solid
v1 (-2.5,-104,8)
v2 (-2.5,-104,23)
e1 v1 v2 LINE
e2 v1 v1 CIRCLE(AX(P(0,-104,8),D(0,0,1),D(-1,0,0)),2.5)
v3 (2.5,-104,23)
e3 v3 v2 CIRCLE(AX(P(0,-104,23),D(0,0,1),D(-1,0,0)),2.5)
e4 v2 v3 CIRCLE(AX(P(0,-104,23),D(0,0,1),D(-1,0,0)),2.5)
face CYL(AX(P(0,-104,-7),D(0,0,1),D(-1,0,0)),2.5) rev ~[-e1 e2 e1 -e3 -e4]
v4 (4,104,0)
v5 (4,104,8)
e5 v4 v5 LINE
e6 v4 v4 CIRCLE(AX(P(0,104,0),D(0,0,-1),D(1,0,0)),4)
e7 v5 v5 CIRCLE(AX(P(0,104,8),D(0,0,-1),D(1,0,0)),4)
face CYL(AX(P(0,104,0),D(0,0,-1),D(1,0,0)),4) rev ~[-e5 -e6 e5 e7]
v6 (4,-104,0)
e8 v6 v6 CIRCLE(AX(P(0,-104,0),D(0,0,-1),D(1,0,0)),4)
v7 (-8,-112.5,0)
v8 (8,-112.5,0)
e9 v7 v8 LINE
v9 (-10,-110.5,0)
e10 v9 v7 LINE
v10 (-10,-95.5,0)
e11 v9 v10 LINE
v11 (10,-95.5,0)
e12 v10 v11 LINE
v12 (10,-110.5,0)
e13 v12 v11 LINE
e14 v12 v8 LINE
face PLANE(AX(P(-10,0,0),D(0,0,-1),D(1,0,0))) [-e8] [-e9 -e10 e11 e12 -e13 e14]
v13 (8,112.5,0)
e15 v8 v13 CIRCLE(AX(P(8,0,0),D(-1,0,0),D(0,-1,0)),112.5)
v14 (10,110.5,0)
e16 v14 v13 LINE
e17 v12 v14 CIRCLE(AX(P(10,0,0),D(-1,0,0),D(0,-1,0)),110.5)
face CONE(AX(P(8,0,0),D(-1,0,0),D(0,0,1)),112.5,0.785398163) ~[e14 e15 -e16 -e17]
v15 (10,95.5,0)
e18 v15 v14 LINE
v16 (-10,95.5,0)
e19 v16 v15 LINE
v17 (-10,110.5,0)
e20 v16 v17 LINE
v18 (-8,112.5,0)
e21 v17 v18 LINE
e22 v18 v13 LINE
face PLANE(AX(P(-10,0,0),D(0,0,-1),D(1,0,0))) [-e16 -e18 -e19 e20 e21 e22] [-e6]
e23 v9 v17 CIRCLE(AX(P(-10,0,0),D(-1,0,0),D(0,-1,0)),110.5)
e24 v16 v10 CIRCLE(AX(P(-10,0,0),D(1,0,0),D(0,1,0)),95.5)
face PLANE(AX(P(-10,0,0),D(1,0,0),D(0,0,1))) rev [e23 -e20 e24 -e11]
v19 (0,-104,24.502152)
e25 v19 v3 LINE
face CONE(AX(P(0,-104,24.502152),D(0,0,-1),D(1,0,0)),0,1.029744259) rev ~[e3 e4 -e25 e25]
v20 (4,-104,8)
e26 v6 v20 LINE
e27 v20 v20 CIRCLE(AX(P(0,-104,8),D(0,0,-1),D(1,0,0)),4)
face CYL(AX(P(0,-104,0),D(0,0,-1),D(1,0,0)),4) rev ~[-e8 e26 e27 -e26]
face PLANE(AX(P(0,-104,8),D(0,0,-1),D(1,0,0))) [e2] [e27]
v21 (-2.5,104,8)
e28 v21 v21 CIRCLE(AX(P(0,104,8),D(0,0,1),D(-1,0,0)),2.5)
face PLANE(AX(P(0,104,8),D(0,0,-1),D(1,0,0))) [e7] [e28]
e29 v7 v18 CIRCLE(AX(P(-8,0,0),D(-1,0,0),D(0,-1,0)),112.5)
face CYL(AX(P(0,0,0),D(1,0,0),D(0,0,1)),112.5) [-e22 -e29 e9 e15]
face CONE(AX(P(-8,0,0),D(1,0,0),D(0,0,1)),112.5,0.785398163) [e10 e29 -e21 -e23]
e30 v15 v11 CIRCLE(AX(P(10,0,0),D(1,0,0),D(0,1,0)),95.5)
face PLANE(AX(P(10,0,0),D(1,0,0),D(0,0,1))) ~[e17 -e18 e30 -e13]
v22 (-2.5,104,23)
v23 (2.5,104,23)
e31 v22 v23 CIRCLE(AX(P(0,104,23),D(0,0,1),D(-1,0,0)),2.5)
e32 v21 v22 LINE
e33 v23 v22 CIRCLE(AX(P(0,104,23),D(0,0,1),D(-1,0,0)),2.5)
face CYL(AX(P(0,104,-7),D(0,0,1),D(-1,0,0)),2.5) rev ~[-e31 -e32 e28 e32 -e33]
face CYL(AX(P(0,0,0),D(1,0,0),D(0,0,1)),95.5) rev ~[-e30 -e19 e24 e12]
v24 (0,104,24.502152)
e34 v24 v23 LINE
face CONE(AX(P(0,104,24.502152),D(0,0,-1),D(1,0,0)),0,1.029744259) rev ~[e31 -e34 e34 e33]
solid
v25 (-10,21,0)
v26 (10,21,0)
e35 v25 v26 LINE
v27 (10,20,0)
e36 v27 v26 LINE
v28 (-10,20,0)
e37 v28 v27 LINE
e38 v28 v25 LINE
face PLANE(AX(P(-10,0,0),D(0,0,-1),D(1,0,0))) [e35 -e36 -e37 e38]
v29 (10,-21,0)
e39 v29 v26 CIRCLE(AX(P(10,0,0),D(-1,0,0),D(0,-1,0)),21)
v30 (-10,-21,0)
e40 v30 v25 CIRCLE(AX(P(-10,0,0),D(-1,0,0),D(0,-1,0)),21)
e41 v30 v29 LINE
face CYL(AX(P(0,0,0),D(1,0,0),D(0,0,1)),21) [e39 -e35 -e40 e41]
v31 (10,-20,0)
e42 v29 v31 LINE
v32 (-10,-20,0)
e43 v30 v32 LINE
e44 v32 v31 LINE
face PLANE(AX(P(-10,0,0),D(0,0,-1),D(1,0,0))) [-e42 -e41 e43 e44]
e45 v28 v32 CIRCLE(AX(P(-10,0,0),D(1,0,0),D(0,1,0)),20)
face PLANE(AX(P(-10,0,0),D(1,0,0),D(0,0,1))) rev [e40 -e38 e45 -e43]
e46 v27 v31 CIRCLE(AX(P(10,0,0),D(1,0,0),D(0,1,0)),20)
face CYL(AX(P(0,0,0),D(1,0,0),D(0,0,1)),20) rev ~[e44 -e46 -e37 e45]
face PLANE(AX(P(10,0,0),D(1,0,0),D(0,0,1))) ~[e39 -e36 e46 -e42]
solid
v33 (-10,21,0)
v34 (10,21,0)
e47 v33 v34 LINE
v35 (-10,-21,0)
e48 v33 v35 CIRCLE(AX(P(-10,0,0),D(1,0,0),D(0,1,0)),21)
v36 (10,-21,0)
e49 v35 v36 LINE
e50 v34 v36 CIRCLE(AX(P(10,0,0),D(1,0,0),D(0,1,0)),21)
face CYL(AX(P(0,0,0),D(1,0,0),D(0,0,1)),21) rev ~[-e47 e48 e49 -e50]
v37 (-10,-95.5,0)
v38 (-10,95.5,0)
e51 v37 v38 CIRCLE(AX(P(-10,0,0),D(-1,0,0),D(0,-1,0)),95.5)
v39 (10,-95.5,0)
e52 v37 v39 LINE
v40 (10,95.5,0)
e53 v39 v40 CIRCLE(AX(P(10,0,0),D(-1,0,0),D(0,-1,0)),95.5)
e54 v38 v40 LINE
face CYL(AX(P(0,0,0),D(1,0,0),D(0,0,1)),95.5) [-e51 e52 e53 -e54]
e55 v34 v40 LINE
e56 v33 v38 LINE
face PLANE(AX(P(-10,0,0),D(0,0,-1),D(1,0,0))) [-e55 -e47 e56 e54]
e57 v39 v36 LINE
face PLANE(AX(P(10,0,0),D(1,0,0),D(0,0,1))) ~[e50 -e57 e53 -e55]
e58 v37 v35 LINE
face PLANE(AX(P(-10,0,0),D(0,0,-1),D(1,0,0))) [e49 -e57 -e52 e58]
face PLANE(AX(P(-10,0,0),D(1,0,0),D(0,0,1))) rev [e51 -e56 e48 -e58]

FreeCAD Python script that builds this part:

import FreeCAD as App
import Part
import Sketcher

V = App.Vector


def edges_at(feature, points):
    """Names of the edges that pass closest to the given points."""
    edges = feature.Shape.Edges
    near = lambda p: min(range(len(edges)), key=lambda i: edges[i].distToShape(Part.Vertex(*p))[0])
    return sorted({f"Edge{near(p) + 1}" for p in points})

doc = App.newDocument("Part")
body = doc.addObject("PartDesign::Body", "Body")

# Sketch on XZ plane
sketch1 = body.newObject("Sketcher::SketchObject", "Sketch")
sketch1.AttachmentSupport = (doc.getObject("XZ_Plane"), [""])
sketch1.MapMode = "FlatFace"
sketch1.addGeometry([
    Part.LineSegment(V(-10, 21, 0), V(-10, 20, 0)),
    Part.LineSegment(V(-10, 20, 0), V(10, 20, 0)),
    Part.LineSegment(V(10, 20, 0), V(10, 21, 0)),
    Part.LineSegment(V(10, 21, 0), V(-10, 21, 0)),
], False)
sketch1.addConstraint([
    Sketcher.Constraint("Coincident", 0, 2, 1, 1),
    Sketcher.Constraint("Coincident", 1, 2, 2, 1),
    Sketcher.Constraint("Coincident", 2, 2, 3, 1),
    Sketcher.Constraint("Coincident", 3, 2, 0, 1),
    Sketcher.Constraint("Vertical", 0),
    Sketcher.Constraint("Horizontal", 1),
    Sketcher.Constraint("Vertical", 2),
    Sketcher.Constraint("Horizontal", 3),
    Sketcher.Constraint("DistanceX", 1, 1, 1, 2, 20.0),
    Sketcher.Constraint("DistanceY", 0, 2, 0, 1, 1.0),
    Sketcher.Constraint("DistanceX", 0, 2, -1, 1, 10.0),
    Sketcher.Constraint("DistanceY", -1, 1, 0, 2, 20.0),
])
revolution = body.newObject("PartDesign::Revolution", "Revolution")
revolution.Profile = sketch1
revolution.ReferenceAxis = (sketch1, ["H_Axis"])
revolution.Angle = 360
body2 = doc.addObject("PartDesign::Body", "Body001")

# Sketch on XZ plane
sketch2 = body2.newObject("Sketcher::SketchObject", "Sketch001")
sketch2.AttachmentSupport = (doc.getObject("XZ_Plane001"), [""])
sketch2.MapMode = "FlatFace"
sketch2.addGeometry([
    Part.LineSegment(V(-10, 95.5, 0), V(-10, 21, 0)),
    Part.LineSegment(V(-10, 21, 0), V(10, 21, 0)),
    Part.LineSegment(V(10, 21, 0), V(10, 95.5, 0)),
    Part.LineSegment(V(10, 95.5, 0), V(-10, 95.5, 0)),
], False)
sketch2.addConstraint([
    Sketcher.Constraint("Coincident", 0, 2, 1, 1),
    Sketcher.Constraint("Coincident", 1, 2, 2, 1),
    Sketcher.Constraint("Coincident", 2, 2, 3, 1),
    Sketcher.Constraint("Coincident", 3, 2, 0, 1),
    Sketcher.Constraint("Vertical", 0),
    Sketcher.Constraint("Horizontal", 1),
    Sketcher.Constraint("Vertical", 2),
    Sketcher.Constraint("Horizontal", 3),
    Sketcher.Constraint("DistanceX", 1, 1, 1, 2, 20.0),
    Sketcher.Constraint("DistanceY", 0, 2, 0, 1, 74.5),
    Sketcher.Constraint("DistanceX", 0, 2, -1, 1, 10.0),
    Sketcher.Constraint("DistanceY", -1, 1, 0, 2, 21.0),
])
revolution2 = body2.newObject("PartDesign::Revolution", "Revolution001")
revolution2.Profile = sketch2
revolution2.ReferenceAxis = (sketch2, ["H_Axis"])
revolution2.Angle = 360
body3 = doc.addObject("PartDesign::Body", "Body002")

# Sketch on XZ plane
sketch3 = body3.newObject("Sketcher::SketchObject", "Sketch002")
sketch3.AttachmentSupport = (doc.getObject("XZ_Plane002"), [""])
sketch3.MapMode = "FlatFace"
sketch3.addGeometry([
    Part.LineSegment(V(-10, 112.5, 0), V(-10, 95.5, 0)),
    Part.LineSegment(V(-10, 95.5, 0), V(10, 95.5, 0)),
    Part.LineSegment(V(10, 95.5, 0), V(10, 112.5, 0)),
    Part.LineSegment(V(10, 112.5, 0), V(-10, 112.5, 0)),
], False)
sketch3.addConstraint([
    Sketcher.Constraint("Coincident", 0, 2, 1, 1),
    Sketcher.Constraint("Coincident", 1, 2, 2, 1),
    Sketcher.Constraint("Coincident", 2, 2, 3, 1),
    Sketcher.Constraint("Coincident", 3, 2, 0, 1),
    Sketcher.Constraint("Vertical", 0),
    Sketcher.Constraint("Horizontal", 1),
    Sketcher.Constraint("Vertical", 2),
    Sketcher.Constraint("Horizontal", 3),
    Sketcher.Constraint("DistanceX", 1, 1, 1, 2, 20.0),
    Sketcher.Constraint("DistanceY", 0, 2, 0, 1, 17.0),
    Sketcher.Constraint("DistanceX", 0, 2, -1, 1, 10.0),
    Sketcher.Constraint("DistanceY", -1, 1, 0, 2, 95.5),
])
revolution3 = body3.newObject("PartDesign::Revolution", "Revolution002")
revolution3.Profile = sketch3
revolution3.ReferenceAxis = (sketch3, ["H_Axis"])
revolution3.Angle = 360
doc.recompute()

chamfer = body3.newObject("PartDesign::Chamfer", "Chamfer")
chamfer.Base = (revolution3, edges_at(revolution3, [(10, 0, -112.5), (-10, 0, -112.5)]))
chamfer.Size = 2
body4 = doc.addObject("PartDesign::Body", "Body003")

# Sketch on XZ plane
sketch4 = body4.newObject("Sketcher::SketchObject", "Sketch003")
sketch4.AttachmentSupport = (doc.getObject("XZ_Plane003"), [""])
sketch4.MapMode = "FlatFace"
sketch4.addGeometry([
    Part.LineSegment(V(-10, 0, 0), V(-10, -115, 0)),
    Part.LineSegment(V(-10, -115, 0), V(10, -115, 0)),
    Part.LineSegment(V(10, -115, 0), V(10, 0, 0)),
    Part.LineSegment(V(10, 0, 0), V(-10, 0, 0)),
], False)
sketch4.addConstraint([
    Sketcher.Constraint("Coincident", 0, 2, 1, 1),
    Sketcher.Constraint("Coincident", 1, 2, 2, 1),
    Sketcher.Constraint("Coincident", 2, 2, 3, 1),
    Sketcher.Constraint("Coincident", 3, 2, 0, 1),
    Sketcher.Constraint("Vertical", 0),
    Sketcher.Constraint("Horizontal", 1),
    Sketcher.Constraint("Vertical", 2),
    Sketcher.Constraint("Horizontal", 3),
    Sketcher.Constraint("Symmetric", 2, 2, 3, 2, -1, 1),
    Sketcher.Constraint("DistanceX", 1, 1, 1, 2, 20.0),
    Sketcher.Constraint("DistanceY", 0, 2, 0, 1, 115.0),
])
pad1 = body4.newObject("PartDesign::Pad", "Pad")
pad1.Profile = sketch4
pad1.Type = "TwoLengths"
pad1.Length = 112.501
pad1.Length2 = 112.501
doc.recompute()

body5 = doc.addObject("PartDesign::Body", "Body004")
body5.BaseFeature = body4
boolean = body.newObject("PartDesign::Boolean", "Boolean")
boolean.Type = "Cut"
boolean.addObjects([body5])
doc.recompute()

body6 = doc.addObject("PartDesign::Body", "Body005")
body6.BaseFeature = body4
boolean2 = body2.newObject("PartDesign::Boolean", "Boolean001")
boolean2.Type = "Cut"
boolean2.addObjects([body6])
doc.recompute()

boolean3 = body3.newObject("PartDesign::Boolean", "Boolean002")
boolean3.Type = "Cut"
boolean3.addObjects([body4])

# Sketch on XY plane
sketch5 = body3.newObject("Sketcher::SketchObject", "Sketch004")
sketch5.AttachmentSupport = (doc.getObject("XY_Plane002"), [""])
sketch5.MapMode = "FlatFace"
sketch5.addGeometry([
    Part.Circle(V(0, -104, 0), V(0, 0, 1), 4),
    Part.Circle(V(0, 104, 0), V(0, 0, 1), 4),
], False)
sketch5.addConstraint([
    Sketcher.Constraint("Equal", 0, 1),
    Sketcher.Constraint("Symmetric", 0, 3, 1, 3, -1, 1),
    Sketcher.Constraint("PointOnObject", 0, 3, -2),
    Sketcher.Constraint("Diameter", 0, 8.0),
    Sketcher.Constraint("DistanceY", 0, 3, -1, 1, 104.0),
])
pocket1 = body3.newObject("PartDesign::Pocket", "Pocket")
pocket1.Profile = sketch5
pocket1.Length = 8
pocket1.Reversed = True

# Sketch on XY plane
sketch6 = body3.newObject("Sketcher::SketchObject", "Sketch005")
sketch6.AttachmentSupport = (doc.getObject("XY_Plane002"), [""])
sketch6.MapMode = "FlatFace"
sketch6.AttachmentOffset = App.Placement(V(0, 0, 8), App.Rotation())
sketch6.addGeometry([
    Part.Circle(V(0, -104, 0), V(0, 0, 1), 2.5),
    Part.Circle(V(0, 104, 0), V(0, 0, 1), 2.5),
], False)
sketch6.addConstraint([
    Sketcher.Constraint("Equal", 0, 1),
    Sketcher.Constraint("Symmetric", 0, 3, 1, 3, -1, 1),
    Sketcher.Constraint("PointOnObject", 0, 3, -2),
    Sketcher.Constraint("Diameter", 0, 5.0),
    Sketcher.Constraint("DistanceY", 0, 3, -1, 1, 104.0),
])
doc.recompute()
hole = body3.newObject("PartDesign::Hole", "Hole")
hole.Profile = sketch6
hole.ThreadType = "None"
hole.Diameter = 5
hole.DepthType = "Dimension"
hole.Depth = 15
hole.DrillPoint = "Angled"
hole.DrillPointAngle = 118
hole.Reversed = True

doc.recompute()
